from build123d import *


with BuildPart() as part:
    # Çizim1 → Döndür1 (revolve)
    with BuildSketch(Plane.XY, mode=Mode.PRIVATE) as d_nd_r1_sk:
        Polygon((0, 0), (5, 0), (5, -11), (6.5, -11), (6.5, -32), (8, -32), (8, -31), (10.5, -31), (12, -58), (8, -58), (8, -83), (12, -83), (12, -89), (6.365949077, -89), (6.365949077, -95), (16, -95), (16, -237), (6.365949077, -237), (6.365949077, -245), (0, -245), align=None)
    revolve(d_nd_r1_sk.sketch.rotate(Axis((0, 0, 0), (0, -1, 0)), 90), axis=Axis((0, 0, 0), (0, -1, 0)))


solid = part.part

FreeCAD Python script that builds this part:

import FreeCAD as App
import Part
import Sketcher

doc = App.newDocument("Part")
body = doc.addObject("PartDesign::Body", "Body")

sketch1 = doc.addObject("Sketcher::SketchObject", "Sketch")
body.addObject(sketch1)
sketch1.AttachmentSupport = (doc.XY_Plane, [""])
sketch1.MapMode = "FlatFace"
sketch1.addGeometry([
    Part.LineSegment(App.Vector(5, 0, 0), App.Vector(0, 0, 0)),
    Part.LineSegment(App.Vector(0, 0, 0), App.Vector(0, -245, 0)),
    Part.LineSegment(App.Vector(0, -245, 0), App.Vector(6.4, -245, 0)),
    Part.LineSegment(App.Vector(6.4, -245, 0), App.Vector(6.4, -237, 0)),
    Part.LineSegment(App.Vector(6.4, -237, 0), App.Vector(16, -237, 0)),
    Part.LineSegment(App.Vector(16, -237, 0), App.Vector(16, -95, 0)),
    Part.LineSegment(App.Vector(16, -95, 0), App.Vector(6.4, -95, 0)),
    Part.LineSegment(App.Vector(6.4, -95, 0), App.Vector(6.4, -89, 0)),
    Part.LineSegment(App.Vector(6.4, -89, 0), App.Vector(12, -89, 0)),
    Part.LineSegment(App.Vector(12, -89, 0), App.Vector(12, -83, 0)),
    Part.LineSegment(App.Vector(12, -83, 0), App.Vector(8, -83, 0)),
    Part.LineSegment(App.Vector(8, -83, 0), App.Vector(8, -58, 0)),
    Part.LineSegment(App.Vector(8, -58, 0), App.Vector(12, -58, 0)),
    Part.LineSegment(App.Vector(12, -58, 0), App.Vector(10.5, -31, 0)),
    Part.LineSegment(App.Vector(10.5, -31, 0), App.Vector(8, -31, 0)),
    Part.LineSegment(App.Vector(8, -31, 0), App.Vector(8, -32, 0)),
    Part.LineSegment(App.Vector(8, -32, 0), App.Vector(6.5, -32, 0)),
    Part.LineSegment(App.Vector(6.5, -32, 0), App.Vector(6.5, -11, 0)),
    Part.LineSegment(App.Vector(6.5, -11, 0), App.Vector(5, -11, 0)),
    Part.LineSegment(App.Vector(5, -11, 0), App.Vector(5, 0, 0)),
], False)
sketch1.addConstraint([
    Sketcher.Constraint("Coincident", 0, 2, 1, 1),
    Sketcher.Constraint("Coincident", 1, 2, 2, 1),
    Sketcher.Constraint("Coincident", 2, 2, 3, 1),
    Sketcher.Constraint("Coincident", 3, 2, 4, 1),
    Sketcher.Constraint("Coincident", 4, 2, 5, 1),
    Sketcher.Constraint("Coincident", 5, 2, 6, 1),
    Sketcher.Constraint("Coincident", 6, 2, 7, 1),
    Sketcher.Constraint("Coincident", 7, 2, 8, 1),
    Sketcher.Constraint("Coincident", 8, 2, 9, 1),
    Sketcher.Constraint("Coincident", 9, 2, 10, 1),
    Sketcher.Constraint("Coincident", 10, 2, 11, 1),
    Sketcher.Constraint("Coincident", 11, 2, 12, 1),
    Sketcher.Constraint("Coincident", 12, 2, 13, 1),
    Sketcher.Constraint("Coincident", 13, 2, 14, 1),
    Sketcher.Constraint("Coincident", 14, 2, 15, 1),
    Sketcher.Constraint("Coincident", 15, 2, 16, 1),
    Sketcher.Constraint("Coincident", 16, 2, 17, 1),
    Sketcher.Constraint("Coincident", 17, 2, 18, 1),
    Sketcher.Constraint("Coincident", 18, 2, 19, 1),
    Sketcher.Constraint("Coincident", 19, 2, 0, 1),
    Sketcher.Constraint("Horizontal", 0),
    Sketcher.Constraint("Vertical", 1),
    Sketcher.Constraint("Horizontal", 2),
    Sketcher.Constraint("Vertical", 3),
    Sketcher.Constraint("Horizontal", 4),
    Sketcher.Constraint("Vertical", 5),
    Sketcher.Constraint("Horizontal", 6),
    Sketcher.Constraint("Vertical", 7),
    Sketcher.Constraint("Horizontal", 8),
    Sketcher.Constraint("Vertical", 9),
    Sketcher.Constraint("Horizontal", 10),
    Sketcher.Constraint("Vertical", 11),
    Sketcher.Constraint("Horizontal", 12),
    Sketcher.Constraint("Horizontal", 14),
    Sketcher.Constraint("Vertical", 15),
    Sketcher.Constraint("Horizontal", 16),
    Sketcher.Constraint("Vertical", 17),
    Sketcher.Constraint("Horizontal", 18),
    Sketcher.Constraint("Vertical", 19),
    Sketcher.Constraint("Coincident", 0, 2, -1, 1),
    Sketcher.Constraint("Vertical", 3, 2, 6, 2),
    Sketcher.Constraint("Vertical", 9, 2, 12, 2),
    Sketcher.Constraint("Vertical", 11, 2, 14, 2),
    Sketcher.Constraint("Equal", 16, 18),
    Sketcher.Constraint("Equal", 7, 9),
    Sketcher.Constraint("DistanceX", 0, 2, 0, 1, 5.0),
    Sketcher.Constraint("DistanceX", 10, 2, 10, 1, 4.0),
    Sketcher.Constraint("DistanceY", 1, 2, 1, 1, 245.0),
    Sketcher.Constraint("DistanceY", 3, 1, 3, 2, 8.0),
    Sketcher.Constraint("DistanceY", 5, 1, 5, 2, 142.0),
    Sketcher.Constraint("DistanceY", 7, 1, 7, 2, 6.0),
    Sketcher.Constraint("DistanceY", 11, 1, 11, 2, 25.0),
    Sketcher.Constraint("DistanceY", 15, 2, 15, 1, 1.0),
    Sketcher.Constraint("DistanceY", 17, 1, 17, 2, 21.0),
    Sketcher.Constraint("DistanceY", 19, 1, 19, 2, 11.0),
    Sketcher.Constraint("DistanceX", 14, 2, 14, 1, 2.5),
    Sketcher.Constraint("DistanceX", 16, 2, 16, 1, 1.5),
    Sketcher.Constraint("DistanceX", -1, 1, 4, 2, 16.0),
    Sketcher.Constraint("DistanceX", 2, 1, 2, 2, 6.365949),
])
revolution = doc.addObject("PartDesign::Revolution", "Revolution")
body.addObject(revolution)
revolution.Profile = sketch1
revolution.ReferenceAxis = (sketch1, ["V_Axis"])
revolution.Angle = 360

doc.recompute()
